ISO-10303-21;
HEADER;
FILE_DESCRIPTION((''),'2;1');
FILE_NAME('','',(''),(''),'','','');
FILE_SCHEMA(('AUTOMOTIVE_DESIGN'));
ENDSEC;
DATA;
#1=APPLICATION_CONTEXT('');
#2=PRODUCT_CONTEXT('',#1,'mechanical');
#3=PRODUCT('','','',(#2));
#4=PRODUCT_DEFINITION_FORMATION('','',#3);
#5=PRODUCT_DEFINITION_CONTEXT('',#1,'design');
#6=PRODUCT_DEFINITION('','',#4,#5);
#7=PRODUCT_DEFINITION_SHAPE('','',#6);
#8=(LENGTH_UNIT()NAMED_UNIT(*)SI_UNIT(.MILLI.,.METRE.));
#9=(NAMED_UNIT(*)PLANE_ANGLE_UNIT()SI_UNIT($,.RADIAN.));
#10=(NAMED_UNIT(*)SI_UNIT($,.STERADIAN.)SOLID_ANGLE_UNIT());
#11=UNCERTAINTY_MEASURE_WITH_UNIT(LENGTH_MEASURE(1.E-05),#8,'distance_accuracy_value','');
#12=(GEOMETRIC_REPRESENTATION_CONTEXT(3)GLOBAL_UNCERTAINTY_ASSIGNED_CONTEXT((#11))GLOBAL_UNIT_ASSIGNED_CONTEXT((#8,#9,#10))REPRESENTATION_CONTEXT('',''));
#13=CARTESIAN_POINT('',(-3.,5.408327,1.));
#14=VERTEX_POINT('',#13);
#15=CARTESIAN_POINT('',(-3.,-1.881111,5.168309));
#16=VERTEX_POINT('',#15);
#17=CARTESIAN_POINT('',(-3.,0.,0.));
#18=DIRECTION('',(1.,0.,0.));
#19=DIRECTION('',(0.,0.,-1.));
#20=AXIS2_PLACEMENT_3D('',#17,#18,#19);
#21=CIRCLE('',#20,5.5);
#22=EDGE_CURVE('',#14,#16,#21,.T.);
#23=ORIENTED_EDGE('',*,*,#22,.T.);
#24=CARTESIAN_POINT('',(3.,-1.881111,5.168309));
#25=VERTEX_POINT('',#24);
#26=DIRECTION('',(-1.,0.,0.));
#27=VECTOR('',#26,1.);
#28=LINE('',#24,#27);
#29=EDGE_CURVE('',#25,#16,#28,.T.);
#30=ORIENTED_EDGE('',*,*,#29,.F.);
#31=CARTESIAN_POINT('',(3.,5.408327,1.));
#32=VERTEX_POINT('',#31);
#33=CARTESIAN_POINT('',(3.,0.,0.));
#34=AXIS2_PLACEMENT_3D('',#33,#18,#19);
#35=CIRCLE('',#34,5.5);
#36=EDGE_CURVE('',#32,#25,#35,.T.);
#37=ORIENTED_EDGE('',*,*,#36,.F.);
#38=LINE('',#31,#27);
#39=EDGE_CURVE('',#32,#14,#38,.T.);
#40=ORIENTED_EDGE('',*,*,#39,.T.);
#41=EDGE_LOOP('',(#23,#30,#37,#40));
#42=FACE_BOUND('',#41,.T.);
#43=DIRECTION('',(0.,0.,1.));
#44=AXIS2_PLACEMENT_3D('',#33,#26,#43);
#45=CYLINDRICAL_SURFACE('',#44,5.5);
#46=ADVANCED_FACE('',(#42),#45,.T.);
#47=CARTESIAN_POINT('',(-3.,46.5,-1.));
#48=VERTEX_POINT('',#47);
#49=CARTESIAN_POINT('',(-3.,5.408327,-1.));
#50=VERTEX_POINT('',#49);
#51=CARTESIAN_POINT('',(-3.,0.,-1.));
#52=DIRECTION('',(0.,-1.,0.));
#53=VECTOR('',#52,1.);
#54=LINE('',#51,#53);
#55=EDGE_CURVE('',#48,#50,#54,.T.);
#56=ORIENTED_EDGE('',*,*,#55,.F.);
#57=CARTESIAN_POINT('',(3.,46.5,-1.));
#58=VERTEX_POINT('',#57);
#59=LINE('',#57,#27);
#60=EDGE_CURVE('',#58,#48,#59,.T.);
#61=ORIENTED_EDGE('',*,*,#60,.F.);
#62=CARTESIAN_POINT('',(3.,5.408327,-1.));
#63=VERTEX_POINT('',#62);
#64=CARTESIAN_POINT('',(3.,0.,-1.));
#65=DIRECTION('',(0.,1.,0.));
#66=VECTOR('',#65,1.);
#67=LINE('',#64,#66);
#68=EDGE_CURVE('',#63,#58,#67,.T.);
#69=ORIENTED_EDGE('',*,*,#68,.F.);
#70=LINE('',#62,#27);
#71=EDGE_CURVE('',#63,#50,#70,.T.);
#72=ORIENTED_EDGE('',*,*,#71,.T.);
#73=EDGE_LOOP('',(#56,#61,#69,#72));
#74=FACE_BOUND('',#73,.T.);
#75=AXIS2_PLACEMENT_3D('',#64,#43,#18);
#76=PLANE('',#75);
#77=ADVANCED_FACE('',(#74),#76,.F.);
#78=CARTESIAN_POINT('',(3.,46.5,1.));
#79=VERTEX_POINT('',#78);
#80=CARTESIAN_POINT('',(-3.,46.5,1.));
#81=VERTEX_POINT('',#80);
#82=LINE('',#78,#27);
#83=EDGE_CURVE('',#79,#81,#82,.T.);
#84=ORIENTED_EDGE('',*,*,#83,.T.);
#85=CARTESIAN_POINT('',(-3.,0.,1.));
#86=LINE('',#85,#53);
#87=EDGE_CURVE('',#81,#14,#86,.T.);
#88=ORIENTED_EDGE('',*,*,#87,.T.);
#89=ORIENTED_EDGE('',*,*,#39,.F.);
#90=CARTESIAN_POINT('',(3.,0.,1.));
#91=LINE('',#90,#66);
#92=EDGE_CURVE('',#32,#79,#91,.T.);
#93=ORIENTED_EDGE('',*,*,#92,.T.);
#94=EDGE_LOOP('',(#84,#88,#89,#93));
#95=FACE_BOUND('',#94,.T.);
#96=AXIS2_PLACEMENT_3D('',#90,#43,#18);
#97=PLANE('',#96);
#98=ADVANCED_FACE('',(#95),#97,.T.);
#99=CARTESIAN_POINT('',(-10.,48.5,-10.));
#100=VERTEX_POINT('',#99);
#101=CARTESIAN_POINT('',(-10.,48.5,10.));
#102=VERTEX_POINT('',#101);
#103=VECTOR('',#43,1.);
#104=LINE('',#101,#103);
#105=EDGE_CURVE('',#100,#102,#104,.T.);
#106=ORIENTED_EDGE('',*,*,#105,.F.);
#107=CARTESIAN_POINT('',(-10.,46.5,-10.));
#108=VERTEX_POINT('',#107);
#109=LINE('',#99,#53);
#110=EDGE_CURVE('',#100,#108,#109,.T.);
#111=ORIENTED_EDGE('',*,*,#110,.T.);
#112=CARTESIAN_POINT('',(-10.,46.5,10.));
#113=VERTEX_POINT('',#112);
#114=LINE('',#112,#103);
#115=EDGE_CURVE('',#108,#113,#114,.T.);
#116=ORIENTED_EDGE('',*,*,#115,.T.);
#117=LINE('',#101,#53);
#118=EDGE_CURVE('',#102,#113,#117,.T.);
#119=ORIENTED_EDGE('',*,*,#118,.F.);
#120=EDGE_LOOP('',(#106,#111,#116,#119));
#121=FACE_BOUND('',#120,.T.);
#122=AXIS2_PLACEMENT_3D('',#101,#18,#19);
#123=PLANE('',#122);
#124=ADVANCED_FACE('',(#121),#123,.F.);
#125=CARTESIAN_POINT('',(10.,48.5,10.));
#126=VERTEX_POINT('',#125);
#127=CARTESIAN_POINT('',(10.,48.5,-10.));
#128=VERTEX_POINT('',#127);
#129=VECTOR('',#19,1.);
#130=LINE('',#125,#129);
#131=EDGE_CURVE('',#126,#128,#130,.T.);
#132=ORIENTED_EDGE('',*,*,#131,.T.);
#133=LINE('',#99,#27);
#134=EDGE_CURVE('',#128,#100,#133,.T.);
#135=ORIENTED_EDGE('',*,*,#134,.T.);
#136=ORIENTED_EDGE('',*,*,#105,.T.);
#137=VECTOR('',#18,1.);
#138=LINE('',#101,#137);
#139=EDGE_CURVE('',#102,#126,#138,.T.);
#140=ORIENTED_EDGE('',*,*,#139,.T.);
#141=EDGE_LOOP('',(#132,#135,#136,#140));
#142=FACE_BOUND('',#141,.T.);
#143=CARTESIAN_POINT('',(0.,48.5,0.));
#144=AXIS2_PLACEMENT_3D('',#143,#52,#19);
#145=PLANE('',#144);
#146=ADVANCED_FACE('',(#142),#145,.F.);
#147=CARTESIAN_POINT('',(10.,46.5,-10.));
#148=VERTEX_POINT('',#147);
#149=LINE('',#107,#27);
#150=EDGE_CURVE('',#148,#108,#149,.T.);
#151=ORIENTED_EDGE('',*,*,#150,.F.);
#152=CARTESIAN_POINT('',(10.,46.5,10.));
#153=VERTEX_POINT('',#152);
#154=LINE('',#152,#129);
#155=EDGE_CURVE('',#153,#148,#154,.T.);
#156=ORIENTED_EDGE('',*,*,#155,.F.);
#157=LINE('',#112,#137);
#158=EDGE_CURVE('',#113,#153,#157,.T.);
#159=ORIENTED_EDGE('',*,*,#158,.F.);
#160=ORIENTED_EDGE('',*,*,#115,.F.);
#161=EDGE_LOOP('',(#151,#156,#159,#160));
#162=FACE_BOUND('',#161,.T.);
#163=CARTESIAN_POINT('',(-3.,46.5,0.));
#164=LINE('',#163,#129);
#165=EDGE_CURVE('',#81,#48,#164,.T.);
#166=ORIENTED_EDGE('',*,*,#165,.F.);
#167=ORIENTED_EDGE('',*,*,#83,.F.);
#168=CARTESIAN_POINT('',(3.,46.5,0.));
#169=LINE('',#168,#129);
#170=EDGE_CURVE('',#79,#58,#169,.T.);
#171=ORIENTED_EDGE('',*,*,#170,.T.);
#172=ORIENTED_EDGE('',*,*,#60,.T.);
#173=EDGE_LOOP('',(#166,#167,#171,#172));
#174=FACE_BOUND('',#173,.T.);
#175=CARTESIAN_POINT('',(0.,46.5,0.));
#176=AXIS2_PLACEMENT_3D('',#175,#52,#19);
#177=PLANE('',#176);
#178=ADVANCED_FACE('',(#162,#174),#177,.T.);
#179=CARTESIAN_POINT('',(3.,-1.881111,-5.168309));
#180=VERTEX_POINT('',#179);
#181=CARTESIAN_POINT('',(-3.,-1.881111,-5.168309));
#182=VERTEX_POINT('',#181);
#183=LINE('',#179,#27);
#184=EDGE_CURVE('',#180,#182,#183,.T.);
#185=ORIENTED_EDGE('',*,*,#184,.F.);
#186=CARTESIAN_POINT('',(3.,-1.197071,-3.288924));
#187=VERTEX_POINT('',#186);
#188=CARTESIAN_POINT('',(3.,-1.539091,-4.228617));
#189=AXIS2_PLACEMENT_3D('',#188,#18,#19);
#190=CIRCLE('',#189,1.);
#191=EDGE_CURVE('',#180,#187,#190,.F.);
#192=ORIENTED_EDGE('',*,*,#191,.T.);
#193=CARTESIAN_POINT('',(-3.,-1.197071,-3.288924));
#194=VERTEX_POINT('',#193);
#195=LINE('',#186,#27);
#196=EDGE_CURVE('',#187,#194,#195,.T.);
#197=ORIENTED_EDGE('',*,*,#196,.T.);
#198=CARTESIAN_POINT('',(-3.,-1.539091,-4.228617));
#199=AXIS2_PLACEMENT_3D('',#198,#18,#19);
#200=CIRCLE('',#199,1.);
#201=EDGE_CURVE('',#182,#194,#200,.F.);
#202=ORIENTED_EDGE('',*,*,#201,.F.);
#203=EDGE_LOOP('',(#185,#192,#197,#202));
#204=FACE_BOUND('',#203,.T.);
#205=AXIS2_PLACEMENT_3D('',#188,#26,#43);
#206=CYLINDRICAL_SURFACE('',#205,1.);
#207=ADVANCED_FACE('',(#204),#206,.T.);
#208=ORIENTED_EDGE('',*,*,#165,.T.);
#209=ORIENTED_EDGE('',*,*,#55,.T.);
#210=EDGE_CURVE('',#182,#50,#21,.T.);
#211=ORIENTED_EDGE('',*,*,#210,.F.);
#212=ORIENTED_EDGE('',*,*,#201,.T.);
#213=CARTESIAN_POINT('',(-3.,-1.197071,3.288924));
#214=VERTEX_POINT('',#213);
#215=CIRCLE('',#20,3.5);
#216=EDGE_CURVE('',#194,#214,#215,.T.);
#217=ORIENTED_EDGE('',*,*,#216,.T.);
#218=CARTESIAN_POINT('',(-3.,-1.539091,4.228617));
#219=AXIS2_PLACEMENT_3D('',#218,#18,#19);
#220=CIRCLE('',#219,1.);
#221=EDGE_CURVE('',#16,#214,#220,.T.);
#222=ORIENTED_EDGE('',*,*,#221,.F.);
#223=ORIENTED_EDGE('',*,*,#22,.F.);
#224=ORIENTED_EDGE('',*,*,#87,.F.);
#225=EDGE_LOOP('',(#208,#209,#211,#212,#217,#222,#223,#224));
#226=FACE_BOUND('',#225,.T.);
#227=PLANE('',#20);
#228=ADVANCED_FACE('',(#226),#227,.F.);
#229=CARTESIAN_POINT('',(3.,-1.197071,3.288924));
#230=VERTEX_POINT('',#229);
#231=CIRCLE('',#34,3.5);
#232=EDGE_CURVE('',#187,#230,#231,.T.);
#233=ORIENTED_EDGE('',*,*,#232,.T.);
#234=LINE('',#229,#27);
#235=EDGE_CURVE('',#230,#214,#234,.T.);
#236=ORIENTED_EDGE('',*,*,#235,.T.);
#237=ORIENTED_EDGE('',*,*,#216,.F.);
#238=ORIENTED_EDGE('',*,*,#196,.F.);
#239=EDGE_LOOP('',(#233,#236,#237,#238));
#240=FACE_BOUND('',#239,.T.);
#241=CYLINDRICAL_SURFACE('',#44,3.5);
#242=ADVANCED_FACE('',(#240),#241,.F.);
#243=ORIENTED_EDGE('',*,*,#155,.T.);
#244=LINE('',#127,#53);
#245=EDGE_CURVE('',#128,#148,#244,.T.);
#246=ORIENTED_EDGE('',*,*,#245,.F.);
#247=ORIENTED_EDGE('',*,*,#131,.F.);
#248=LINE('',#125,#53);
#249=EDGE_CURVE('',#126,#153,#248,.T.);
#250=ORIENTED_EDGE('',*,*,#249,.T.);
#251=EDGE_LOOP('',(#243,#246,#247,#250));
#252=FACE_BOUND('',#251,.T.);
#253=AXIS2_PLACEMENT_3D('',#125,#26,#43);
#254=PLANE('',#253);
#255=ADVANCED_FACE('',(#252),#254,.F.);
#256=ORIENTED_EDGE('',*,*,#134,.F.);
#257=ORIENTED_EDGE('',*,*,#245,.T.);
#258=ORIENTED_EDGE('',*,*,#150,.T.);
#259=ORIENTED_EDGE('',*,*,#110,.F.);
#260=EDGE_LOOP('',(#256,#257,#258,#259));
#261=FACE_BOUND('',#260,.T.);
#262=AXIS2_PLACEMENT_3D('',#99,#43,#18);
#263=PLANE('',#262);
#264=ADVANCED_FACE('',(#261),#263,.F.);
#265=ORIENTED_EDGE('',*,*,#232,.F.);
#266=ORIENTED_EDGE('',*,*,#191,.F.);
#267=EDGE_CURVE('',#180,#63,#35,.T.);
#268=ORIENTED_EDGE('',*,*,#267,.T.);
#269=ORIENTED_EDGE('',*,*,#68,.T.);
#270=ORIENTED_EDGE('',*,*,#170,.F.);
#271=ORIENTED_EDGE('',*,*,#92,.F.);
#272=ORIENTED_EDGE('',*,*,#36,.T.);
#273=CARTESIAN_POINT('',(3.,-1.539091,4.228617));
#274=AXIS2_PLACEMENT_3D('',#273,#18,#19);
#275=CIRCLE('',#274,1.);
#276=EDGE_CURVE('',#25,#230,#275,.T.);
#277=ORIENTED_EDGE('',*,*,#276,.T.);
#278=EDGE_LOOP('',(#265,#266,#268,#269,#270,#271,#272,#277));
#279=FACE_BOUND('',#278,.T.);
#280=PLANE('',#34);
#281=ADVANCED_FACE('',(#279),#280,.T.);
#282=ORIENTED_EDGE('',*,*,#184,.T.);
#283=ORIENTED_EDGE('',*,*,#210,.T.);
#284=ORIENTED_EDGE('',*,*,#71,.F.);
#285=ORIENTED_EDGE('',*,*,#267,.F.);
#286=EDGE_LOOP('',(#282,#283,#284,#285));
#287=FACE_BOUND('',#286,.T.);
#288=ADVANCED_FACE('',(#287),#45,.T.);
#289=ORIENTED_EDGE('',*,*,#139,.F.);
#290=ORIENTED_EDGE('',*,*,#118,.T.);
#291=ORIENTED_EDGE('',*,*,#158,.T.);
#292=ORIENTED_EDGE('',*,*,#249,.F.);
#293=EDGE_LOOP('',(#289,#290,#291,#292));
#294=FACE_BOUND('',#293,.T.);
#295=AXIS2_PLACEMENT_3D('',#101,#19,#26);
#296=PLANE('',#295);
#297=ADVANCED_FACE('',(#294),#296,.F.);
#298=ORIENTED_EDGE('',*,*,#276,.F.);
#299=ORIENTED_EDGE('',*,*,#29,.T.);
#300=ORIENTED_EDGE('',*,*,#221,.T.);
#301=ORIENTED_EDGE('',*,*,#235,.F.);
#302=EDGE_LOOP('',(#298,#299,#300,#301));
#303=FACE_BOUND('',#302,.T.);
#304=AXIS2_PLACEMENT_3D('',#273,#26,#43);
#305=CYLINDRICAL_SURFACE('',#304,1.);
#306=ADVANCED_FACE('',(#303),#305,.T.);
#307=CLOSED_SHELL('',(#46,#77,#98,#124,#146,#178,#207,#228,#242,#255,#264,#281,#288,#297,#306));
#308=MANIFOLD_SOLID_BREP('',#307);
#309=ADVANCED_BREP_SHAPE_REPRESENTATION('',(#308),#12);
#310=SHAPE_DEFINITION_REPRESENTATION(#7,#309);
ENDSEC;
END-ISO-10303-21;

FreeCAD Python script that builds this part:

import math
import FreeCAD as App
import Part
import Sketcher
from FreeCAD import Vector
Q = App.Units.Quantity

doc = App.newDocument("Part")
body = doc.addObject("PartDesign::Body", "Body")

sketch1 = body.newObject("Sketcher::SketchObject", "Sketch")
sketch1.AttachmentSupport = (doc.getObject("YZ_Plane"), [""])
sketch1.MapMode = "FlatFace"
sketch1.addGeometry(Part.ArcOfCircle(Part.Circle(Vector(0, 0, 0), Vector(0, 0, 1), 3.5), math.radians(-90), math.radians(90)), False)
sketch1.addGeometry(Part.ArcOfCircle(Part.Circle(Vector(0, 0, 0), Vector(0, 0, 1), 3.5), math.radians(-110), math.radians(-90)), False)
sketch1.addGeometry(Part.ArcOfCircle(Part.Circle(Vector(-1.5, -4.2, 0), Vector(0, 0, 1), 1), math.radians(70), math.radians(250)), False)
sketch1.addGeometry(Part.ArcOfCircle(Part.Circle(Vector(0, 0, 0), Vector(0, 0, 1), 5.5), math.radians(-110), math.radians(-90)), False)
sketch1.addGeometry(Part.ArcOfCircle(Part.Circle(Vector(0, 0, 0), Vector(0, 0, 1), 5.5), math.radians(-90), math.radians(90)), False)
sketch1.addGeometry(Part.ArcOfCircle(Part.Circle(Vector(0, 0, 0), Vector(0, 0, 1), 5.5), math.radians(90), math.radians(110)), False)
sketch1.addGeometry(Part.ArcOfCircle(Part.Circle(Vector(-1.5, 4.2, 0), Vector(0, 0, 1), 1), math.radians(110), math.radians(290)), False)
sketch1.addGeometry(Part.ArcOfCircle(Part.Circle(Vector(0, 0, 0), Vector(0, 0, 1), 3.5), math.radians(90), math.radians(110)), False)
sketch1.addConstraint(Sketcher.Constraint("Tangent", 0, 1, 1, 2))
sketch1.addConstraint(Sketcher.Constraint("Tangent", 1, 1, 2, 1))
sketch1.addConstraint(Sketcher.Constraint("Tangent", 2, 2, 3, 1))
sketch1.addConstraint(Sketcher.Constraint("Tangent", 3, 2, 4, 1))
sketch1.addConstraint(Sketcher.Constraint("Tangent", 4, 2, 5, 1))
sketch1.addConstraint(Sketcher.Constraint("Tangent", 5, 2, 6, 1))
sketch1.addConstraint(Sketcher.Constraint("Tangent", 6, 2, 7, 2))
sketch1.addConstraint(Sketcher.Constraint("Tangent", 7, 1, 0, 2))
sketch1.addConstraint(Sketcher.Constraint("Coincident", 0, 3, -1, 1))
sketch1.addConstraint(Sketcher.Constraint("Coincident", 3, 3, -1, 1))
sketch1.addConstraint(Sketcher.Constraint("Equal", 0, 1))
sketch1.addConstraint(Sketcher.Constraint("Equal", 3, 4))
sketch1.addConstraint(Sketcher.Constraint("Equal", 4, 5))
sketch1.addConstraint(Sketcher.Constraint("Equal", 2, 6))
sketch1.addConstraint(Sketcher.Constraint("PointOnObject", 0, 1, -2))
sketch1.addConstraint(Sketcher.Constraint("PointOnObject", 3, 2, -2))
sketch1.addConstraint(Sketcher.Constraint("PointOnObject", 4, 2, -2))
sketch1.addConstraint(Sketcher.Constraint("PointOnObject", 7, 1, -2))
sketch1.addConstraint(Sketcher.Constraint("Vertical", 2, 3, 6, 3))
sketch1.addConstraint(Sketcher.Constraint("Radius", 2, Q("1 mm")))
sketch1.addConstraint(Sketcher.Constraint("Radius", 0, Q("3.5 mm")))
sketch1.addConstraint(Sketcher.Constraint("DistanceX", 2, 3, -1, 1, Q("1.539091 mm")))
pad1 = body.newObject("PartDesign::Pad", "Pad")
pad1.Profile = sketch1
pad1.Type = "TwoLengths"
pad1.Length = 3
pad1.Length2 = 3

sketch2 = body.newObject("Sketcher::SketchObject", "Sketch001")
sketch2.AttachmentSupport = (doc.getObject("YZ_Plane"), [""])
sketch2.MapMode = "FlatFace"
sketch2.addGeometry(Part.LineSegment(Vector(3.5, 1, 0), Vector(3.5, -1, 0)), False)
sketch2.addGeometry(Part.LineSegment(Vector(3.5, -1, 0), Vector(46.5, -1, 0)), False)
sketch2.addGeometry(Part.LineSegment(Vector(46.5, -1, 0), Vector(46.5, 1, 0)), False)
sketch2.addGeometry(Part.LineSegment(Vector(46.5, 1, 0), Vector(3.5, 1, 0)), False)
sketch2.addConstraint(Sketcher.Constraint("Coincident", 0, 2, 1, 1))
sketch2.addConstraint(Sketcher.Constraint("Coincident", 1, 2, 2, 1))
sketch2.addConstraint(Sketcher.Constraint("Coincident", 2, 2, 3, 1))
sketch2.addConstraint(Sketcher.Constraint("Coincident", 3, 2, 0, 1))
sketch2.addConstraint(Sketcher.Constraint("Vertical", 0))
sketch2.addConstraint(Sketcher.Constraint("Horizontal", 1))
sketch2.addConstraint(Sketcher.Constraint("Vertical", 2))
sketch2.addConstraint(Sketcher.Constraint("Horizontal", 3))
sketch2.addConstraint(Sketcher.Constraint("DistanceX", 1, 1, 1, 2, Q("43 mm")))
sketch2.addConstraint(Sketcher.Constraint("DistanceY", 0, 2, 0, 1, Q("2 mm")))
sketch2.addConstraint(Sketcher.Constraint("DistanceY", 0, 2, -1, 1, Q("1 mm")))
sketch2.addConstraint(Sketcher.Constraint("DistanceX", -1, 1, 0, 2, Q("3.5 mm")))
pad2 = body.newObject("PartDesign::Pad", "Pad001")
pad2.Profile = sketch2
pad2.Length = 3

sketch3 = body.newObject("Sketcher::SketchObject", "Sketch002")
sketch3.AttachmentSupport = (doc.getObject("YZ_Plane"), [""])
sketch3.MapMode = "FlatFace"
sketch3.addGeometry(Part.LineSegment(Vector(46.5, -1, 0), Vector(46.5, 1, 0)), False)
sketch3.addGeometry(Part.LineSegment(Vector(46.5, 1, 0), Vector(3.5, 1, 0)), False)
sketch3.addGeometry(Part.LineSegment(Vector(3.5, 1, 0), Vector(3.5, -1, 0)), False)
sketch3.addGeometry(Part.LineSegment(Vector(3.5, -1, 0), Vector(46.5, -1, 0)), False)
sketch3.addConstraint(Sketcher.Constraint("Coincident", 0, 2, 1, 1))
sketch3.addConstraint(Sketcher.Constraint("Coincident", 1, 2, 2, 1))
sketch3.addConstraint(Sketcher.Constraint("Coincident", 2, 2, 3, 1))
sketch3.addConstraint(Sketcher.Constraint("Coincident", 3, 2, 0, 1))
sketch3.addConstraint(Sketcher.Constraint("Vertical", 0))
sketch3.addConstraint(Sketcher.Constraint("Horizontal", 1))
sketch3.addConstraint(Sketcher.Constraint("Vertical", 2))
sketch3.addConstraint(Sketcher.Constraint("Horizontal", 3))
sketch3.addConstraint(Sketcher.Constraint("DistanceX", 1, 2, 1, 1, Q("43 mm")))
sketch3.addConstraint(Sketcher.Constraint("DistanceY", 0, 1, 0, 2, Q("2 mm")))
sketch3.addConstraint(Sketcher.Constraint("DistanceY", -1, 1, 0, 2, Q("1 mm")))
sketch3.addConstraint(Sketcher.Constraint("DistanceX", -1, 1, 0, 2, Q("46.5 mm")))
pad3 = body.newObject("PartDesign::Pad", "Pad002")
pad3.Profile = sketch3
pad3.Length = 3
pad3.Reversed = True

sketch4 = body.newObject("Sketcher::SketchObject", "Sketch003")
sketch4.AttachmentSupport = (doc.getObject("XZ_Plane"), [""])
sketch4.MapMode = "FlatFace"
sketch4.AttachmentOffset = App.Placement(Vector(0, 0, -46.5), App.Rotation())
sketch4.addGeometry(Part.LineSegment(Vector(-10, -10, 0), Vector(-10, 10, 0)), False)
sketch4.addGeometry(Part.LineSegment(Vector(-10, 10, 0), Vector(10, 10, 0)), False)
sketch4.addGeometry(Part.LineSegment(Vector(10, 10, 0), Vector(10, -10, 0)), False)
sketch4.addGeometry(Part.LineSegment(Vector(10, -10, 0), Vector(-10, -10, 0)), False)
sketch4.addConstraint(Sketcher.Constraint("Coincident", 0, 2, 1, 1))
sketch4.addConstraint(Sketcher.Constraint("Coincident", 1, 2, 2, 1))
sketch4.addConstraint(Sketcher.Constraint("Coincident", 2, 2, 3, 1))
sketch4.addConstraint(Sketcher.Constraint("Coincident", 3, 2, 0, 1))
sketch4.addConstraint(Sketcher.Constraint("Vertical", 0))
sketch4.addConstraint(Sketcher.Constraint("Horizontal", 1))
sketch4.addConstraint(Sketcher.Constraint("Vertical", 2))
sketch4.addConstraint(Sketcher.Constraint("Horizontal", 3))
sketch4.addConstraint(Sketcher.Constraint("Symmetric", 0, 2, 2, 2, -1, 1))
sketch4.addConstraint(Sketcher.Constraint("Equal", 3, 0))
sketch4.addConstraint(Sketcher.Constraint("DistanceX", 1, 1, 1, 2, Q("20 mm")))
pad4 = body.newObject("PartDesign::Pad", "Pad003")
pad4.Profile = sketch4
pad4.Length = 2
pad4.Reversed = True

doc.recompute()
